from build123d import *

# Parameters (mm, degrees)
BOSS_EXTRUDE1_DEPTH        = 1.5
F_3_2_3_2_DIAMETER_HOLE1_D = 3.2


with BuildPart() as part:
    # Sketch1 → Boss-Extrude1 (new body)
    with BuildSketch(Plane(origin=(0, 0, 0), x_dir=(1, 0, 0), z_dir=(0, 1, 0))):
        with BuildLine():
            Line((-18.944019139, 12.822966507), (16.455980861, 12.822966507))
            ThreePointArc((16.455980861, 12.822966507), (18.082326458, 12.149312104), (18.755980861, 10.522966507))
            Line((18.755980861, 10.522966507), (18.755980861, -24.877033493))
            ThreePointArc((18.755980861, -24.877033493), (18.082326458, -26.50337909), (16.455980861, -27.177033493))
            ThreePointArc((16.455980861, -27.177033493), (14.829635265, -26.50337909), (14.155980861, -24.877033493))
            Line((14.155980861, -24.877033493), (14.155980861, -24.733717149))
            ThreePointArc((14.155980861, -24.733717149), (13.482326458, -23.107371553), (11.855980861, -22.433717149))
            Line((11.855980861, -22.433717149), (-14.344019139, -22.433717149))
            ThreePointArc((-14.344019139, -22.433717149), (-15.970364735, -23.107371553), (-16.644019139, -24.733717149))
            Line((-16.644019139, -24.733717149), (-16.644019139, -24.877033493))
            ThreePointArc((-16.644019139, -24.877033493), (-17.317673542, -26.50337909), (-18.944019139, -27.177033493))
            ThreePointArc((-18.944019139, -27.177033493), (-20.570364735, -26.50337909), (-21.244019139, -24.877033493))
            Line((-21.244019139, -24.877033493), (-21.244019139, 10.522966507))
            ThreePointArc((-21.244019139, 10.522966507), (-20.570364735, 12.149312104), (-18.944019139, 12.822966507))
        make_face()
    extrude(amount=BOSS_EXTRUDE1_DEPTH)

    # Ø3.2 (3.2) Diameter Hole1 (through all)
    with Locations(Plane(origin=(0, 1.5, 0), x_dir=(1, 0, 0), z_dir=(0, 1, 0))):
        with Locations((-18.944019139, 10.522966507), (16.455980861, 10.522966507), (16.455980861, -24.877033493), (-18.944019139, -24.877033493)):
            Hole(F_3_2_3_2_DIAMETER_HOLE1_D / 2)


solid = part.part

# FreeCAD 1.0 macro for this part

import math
import FreeCAD as App
import Part
import Sketcher

doc = App.newDocument("Part")
params = doc.addObject("Spreadsheet::Sheet", "Params")
for row, (alias, value) in enumerate([
    ("sketch1_radius", "2.3 mm"),
    ("sketch1_width", "35.4 mm"),
    ("pad1_length", "1.5 mm"),
    ("sketch2_diameter", "3.2 mm"),
    ("hole_diameter", "3.2 mm"),
], start=1):
    params.set(f"A{row}", alias)
    params.set(f"B{row}", "=" + value)
    params.setAlias(f"B{row}", alias)

body = doc.addObject("PartDesign::Body", "Body")

sketch1 = body.newObject("Sketcher::SketchObject", "Sketch")
sketch1.AttachmentSupport = (doc.getObject("XZ_Plane"), [""])
sketch1.MapMode = "FlatFace"
sketch1.addGeometry(Part.LineSegment(App.Vector(16.46, -12.82, 0), App.Vector(-18.94, -12.82, 0)), False)
sketch1.addGeometry(Part.ArcOfCircle(Part.Circle(App.Vector(-18.94, -10.52, 0), App.Vector(0, 0, 1), 2.3), math.radians(-180), math.radians(-90)), False)
sketch1.addGeometry(Part.LineSegment(App.Vector(-21.24, -10.52, 0), App.Vector(-21.24, 24.88, 0)), False)
sketch1.addGeometry(Part.ArcOfCircle(Part.Circle(App.Vector(-18.94, 24.88, 0), App.Vector(0, 0, 1), 2.3), math.radians(90), math.radians(180)), False)
sketch1.addGeometry(Part.ArcOfCircle(Part.Circle(App.Vector(-18.94, 24.88, 0), App.Vector(0, 0, 1), 2.3), math.radians(0), math.radians(90)), False)
sketch1.addGeometry(Part.LineSegment(App.Vector(-16.64, 24.88, 0), App.Vector(-16.64, 24.73, 0)), False)
sketch1.addGeometry(Part.ArcOfCircle(Part.Circle(App.Vector(-14.34, 24.73, 0), App.Vector(0, 0, 1), 2.3), math.radians(-180), math.radians(-90)), False)
sketch1.addGeometry(Part.LineSegment(App.Vector(-14.34, 22.43, 0), App.Vector(11.86, 22.43, 0)), False)
sketch1.addGeometry(Part.ArcOfCircle(Part.Circle(App.Vector(11.86, 24.73, 0), App.Vector(0, 0, 1), 2.3), math.radians(-90), math.radians(0)), False)
sketch1.addGeometry(Part.LineSegment(App.Vector(14.16, 24.73, 0), App.Vector(14.16, 24.88, 0)), False)
sketch1.addGeometry(Part.ArcOfCircle(Part.Circle(App.Vector(16.46, 24.88, 0), App.Vector(0, 0, 1), 2.3), math.radians(90), math.radians(180)), False)
sketch1.addGeometry(Part.ArcOfCircle(Part.Circle(App.Vector(16.46, 24.88, 0), App.Vector(0, 0, 1), 2.3), math.radians(0), math.radians(90)), False)
sketch1.addGeometry(Part.LineSegment(App.Vector(18.76, 24.88, 0), App.Vector(18.76, -10.52, 0)), False)
sketch1.addGeometry(Part.ArcOfCircle(Part.Circle(App.Vector(16.46, -10.52, 0), App.Vector(0, 0, 1), 2.3), math.radians(-90), math.radians(0)), False)
sketch1.addConstraint(Sketcher.Constraint("Tangent", 0, 2, 1, 2))
sketch1.addConstraint(Sketcher.Constraint("Tangent", 1, 1, 2, 1))
sketch1.addConstraint(Sketcher.Constraint("Tangent", 2, 2, 3, 2))
sketch1.addConstraint(Sketcher.Constraint("Tangent", 3, 1, 4, 2))
sketch1.addConstraint(Sketcher.Constraint("Tangent", 4, 1, 5, 1))
sketch1.addConstraint(Sketcher.Constraint("Tangent", 5, 2, 6, 1))
sketch1.addConstraint(Sketcher.Constraint("Tangent", 6, 2, 7, 1))
sketch1.addConstraint(Sketcher.Constraint("Tangent", 7, 2, 8, 1))
sketch1.addConstraint(Sketcher.Constraint("Tangent", 8, 2, 9, 1))
sketch1.addConstraint(Sketcher.Constraint("Tangent", 9, 2, 10, 2))
sketch1.addConstraint(Sketcher.Constraint("Tangent", 10, 1, 11, 2))
sketch1.addConstraint(Sketcher.Constraint("Tangent", 11, 1, 12, 1))
sketch1.addConstraint(Sketcher.Constraint("Tangent", 12, 2, 13, 2))
sketch1.addConstraint(Sketcher.Constraint("Tangent", 13, 1, 0, 1))
sketch1.addConstraint(Sketcher.Constraint("Horizontal", 0))
sketch1.addConstraint(Sketcher.Constraint("Vertical", 2))
sketch1.addConstraint(Sketcher.Constraint("Vertical", 5))
sketch1.addConstraint(Sketcher.Constraint("Horizontal", 7))
sketch1.addConstraint(Sketcher.Constraint("Vertical", 9))
sketch1.addConstraint(Sketcher.Constraint("Vertical", 12))
sketch1.addConstraint(Sketcher.Constraint("Equal", 1, 3))
sketch1.addConstraint(Sketcher.Constraint("Equal", 3, 4))
sketch1.addConstraint(Sketcher.Constraint("Equal", 4, 6))
sketch1.addConstraint(Sketcher.Constraint("Equal", 6, 8))
sketch1.addConstraint(Sketcher.Constraint("Equal", 8, 10))
sketch1.addConstraint(Sketcher.Constraint("Equal", 10, 11))
sketch1.addConstraint(Sketcher.Constraint("Equal", 11, 13))
sketch1.addConstraint(Sketcher.Constraint("Horizontal", 4, 3, 10, 3))
sketch1.addConstraint(Sketcher.Constraint("Vertical", 0, 2, 3, 1))
sketch1.addConstraint(Sketcher.Constraint("Vertical", 13, 3, 10, 1))
sketch1.addConstraint(Sketcher.Constraint("Equal", 0, 2))
sketch1.addConstraint(Sketcher.Constraint("Radius", 1, 2.3))
sketch1.addConstraint(Sketcher.Constraint("DistanceX", 0, 2, 0, 1, 35.4))
sketch1.addConstraint(Sketcher.Constraint("DistanceY", 5, 2, 5, 1, 0.143316))
sketch1.addConstraint(Sketcher.Constraint("DistanceX", 1, 3, -1, 1, 18.944019))
sketch1.addConstraint(Sketcher.Constraint("DistanceY", 1, 3, -1, 1, 10.522967))
sketch1.setExpression("Constraints[31]", "Params.sketch1_radius")
sketch1.setExpression("Constraints[32]", "Params.sketch1_width")
pad1 = body.newObject("PartDesign::Pad", "Pad")
pad1.Profile = sketch1
pad1.setExpression("Length", "Params.pad1_length")
pad1.Reversed = True

sketch2 = body.newObject("Sketcher::SketchObject", "Sketch001")
sketch2.AttachmentSupport = (doc.getObject("XZ_Plane"), [""])
sketch2.MapMode = "FlatFace"
sketch2.AttachmentOffset = App.Placement(App.Vector(0, 0, -1.5), App.Rotation())
sketch2.addGeometry(Part.Circle(App.Vector(-18.9, -10.5, 0), App.Vector(0, 0, 1), 1.6), False)
sketch2.addGeometry(Part.Circle(App.Vector(16.5, -10.5, 0), App.Vector(0, 0, 1), 1.6), False)
sketch2.addGeometry(Part.Circle(App.Vector(16.5, 24.9, 0), App.Vector(0, 0, 1), 1.6), False)
sketch2.addGeometry(Part.Circle(App.Vector(-18.9, 24.9, 0), App.Vector(0, 0, 1), 1.6), False)
sketch2.addConstraint(Sketcher.Constraint("Equal", 0, 1))
sketch2.addConstraint(Sketcher.Constraint("Equal", 1, 2))
sketch2.addConstraint(Sketcher.Constraint("Equal", 2, 3))
sketch2.addConstraint(Sketcher.Constraint("Horizontal", 0, 3, 1, 3))
sketch2.addConstraint(Sketcher.Constraint("Horizontal", 2, 3, 3, 3))
sketch2.addConstraint(Sketcher.Constraint("Vertical", 1, 3, 2, 3))
sketch2.addConstraint(Sketcher.Constraint("Vertical", 0, 3, 3, 3))
sketch2.addConstraint(Sketcher.Constraint("Diameter", 0, 3.2))
sketch2.addConstraint(Sketcher.Constraint("DistanceX", 0, 3, 1, 3, 35.4))
sketch2.addConstraint(Sketcher.Constraint("DistanceY", 1, 3, 2, 3, 35.4))
sketch2.addConstraint(Sketcher.Constraint("DistanceX", 0, 3, -1, 1, 18.944019))
sketch2.addConstraint(Sketcher.Constraint("DistanceY", 0, 3, -1, 1, 10.522967))
sketch2.setExpression("Constraints[7]", "Params.sketch2_diameter")
doc.recompute()
hole = body.newObject("PartDesign::Hole", "Hole")
hole.Profile = sketch2
hole.ThreadType = "None"
hole.setExpression("Diameter", "Params.hole_diameter")
hole.DepthType = "ThroughAll"
hole.Reversed = True

doc.recompute()
